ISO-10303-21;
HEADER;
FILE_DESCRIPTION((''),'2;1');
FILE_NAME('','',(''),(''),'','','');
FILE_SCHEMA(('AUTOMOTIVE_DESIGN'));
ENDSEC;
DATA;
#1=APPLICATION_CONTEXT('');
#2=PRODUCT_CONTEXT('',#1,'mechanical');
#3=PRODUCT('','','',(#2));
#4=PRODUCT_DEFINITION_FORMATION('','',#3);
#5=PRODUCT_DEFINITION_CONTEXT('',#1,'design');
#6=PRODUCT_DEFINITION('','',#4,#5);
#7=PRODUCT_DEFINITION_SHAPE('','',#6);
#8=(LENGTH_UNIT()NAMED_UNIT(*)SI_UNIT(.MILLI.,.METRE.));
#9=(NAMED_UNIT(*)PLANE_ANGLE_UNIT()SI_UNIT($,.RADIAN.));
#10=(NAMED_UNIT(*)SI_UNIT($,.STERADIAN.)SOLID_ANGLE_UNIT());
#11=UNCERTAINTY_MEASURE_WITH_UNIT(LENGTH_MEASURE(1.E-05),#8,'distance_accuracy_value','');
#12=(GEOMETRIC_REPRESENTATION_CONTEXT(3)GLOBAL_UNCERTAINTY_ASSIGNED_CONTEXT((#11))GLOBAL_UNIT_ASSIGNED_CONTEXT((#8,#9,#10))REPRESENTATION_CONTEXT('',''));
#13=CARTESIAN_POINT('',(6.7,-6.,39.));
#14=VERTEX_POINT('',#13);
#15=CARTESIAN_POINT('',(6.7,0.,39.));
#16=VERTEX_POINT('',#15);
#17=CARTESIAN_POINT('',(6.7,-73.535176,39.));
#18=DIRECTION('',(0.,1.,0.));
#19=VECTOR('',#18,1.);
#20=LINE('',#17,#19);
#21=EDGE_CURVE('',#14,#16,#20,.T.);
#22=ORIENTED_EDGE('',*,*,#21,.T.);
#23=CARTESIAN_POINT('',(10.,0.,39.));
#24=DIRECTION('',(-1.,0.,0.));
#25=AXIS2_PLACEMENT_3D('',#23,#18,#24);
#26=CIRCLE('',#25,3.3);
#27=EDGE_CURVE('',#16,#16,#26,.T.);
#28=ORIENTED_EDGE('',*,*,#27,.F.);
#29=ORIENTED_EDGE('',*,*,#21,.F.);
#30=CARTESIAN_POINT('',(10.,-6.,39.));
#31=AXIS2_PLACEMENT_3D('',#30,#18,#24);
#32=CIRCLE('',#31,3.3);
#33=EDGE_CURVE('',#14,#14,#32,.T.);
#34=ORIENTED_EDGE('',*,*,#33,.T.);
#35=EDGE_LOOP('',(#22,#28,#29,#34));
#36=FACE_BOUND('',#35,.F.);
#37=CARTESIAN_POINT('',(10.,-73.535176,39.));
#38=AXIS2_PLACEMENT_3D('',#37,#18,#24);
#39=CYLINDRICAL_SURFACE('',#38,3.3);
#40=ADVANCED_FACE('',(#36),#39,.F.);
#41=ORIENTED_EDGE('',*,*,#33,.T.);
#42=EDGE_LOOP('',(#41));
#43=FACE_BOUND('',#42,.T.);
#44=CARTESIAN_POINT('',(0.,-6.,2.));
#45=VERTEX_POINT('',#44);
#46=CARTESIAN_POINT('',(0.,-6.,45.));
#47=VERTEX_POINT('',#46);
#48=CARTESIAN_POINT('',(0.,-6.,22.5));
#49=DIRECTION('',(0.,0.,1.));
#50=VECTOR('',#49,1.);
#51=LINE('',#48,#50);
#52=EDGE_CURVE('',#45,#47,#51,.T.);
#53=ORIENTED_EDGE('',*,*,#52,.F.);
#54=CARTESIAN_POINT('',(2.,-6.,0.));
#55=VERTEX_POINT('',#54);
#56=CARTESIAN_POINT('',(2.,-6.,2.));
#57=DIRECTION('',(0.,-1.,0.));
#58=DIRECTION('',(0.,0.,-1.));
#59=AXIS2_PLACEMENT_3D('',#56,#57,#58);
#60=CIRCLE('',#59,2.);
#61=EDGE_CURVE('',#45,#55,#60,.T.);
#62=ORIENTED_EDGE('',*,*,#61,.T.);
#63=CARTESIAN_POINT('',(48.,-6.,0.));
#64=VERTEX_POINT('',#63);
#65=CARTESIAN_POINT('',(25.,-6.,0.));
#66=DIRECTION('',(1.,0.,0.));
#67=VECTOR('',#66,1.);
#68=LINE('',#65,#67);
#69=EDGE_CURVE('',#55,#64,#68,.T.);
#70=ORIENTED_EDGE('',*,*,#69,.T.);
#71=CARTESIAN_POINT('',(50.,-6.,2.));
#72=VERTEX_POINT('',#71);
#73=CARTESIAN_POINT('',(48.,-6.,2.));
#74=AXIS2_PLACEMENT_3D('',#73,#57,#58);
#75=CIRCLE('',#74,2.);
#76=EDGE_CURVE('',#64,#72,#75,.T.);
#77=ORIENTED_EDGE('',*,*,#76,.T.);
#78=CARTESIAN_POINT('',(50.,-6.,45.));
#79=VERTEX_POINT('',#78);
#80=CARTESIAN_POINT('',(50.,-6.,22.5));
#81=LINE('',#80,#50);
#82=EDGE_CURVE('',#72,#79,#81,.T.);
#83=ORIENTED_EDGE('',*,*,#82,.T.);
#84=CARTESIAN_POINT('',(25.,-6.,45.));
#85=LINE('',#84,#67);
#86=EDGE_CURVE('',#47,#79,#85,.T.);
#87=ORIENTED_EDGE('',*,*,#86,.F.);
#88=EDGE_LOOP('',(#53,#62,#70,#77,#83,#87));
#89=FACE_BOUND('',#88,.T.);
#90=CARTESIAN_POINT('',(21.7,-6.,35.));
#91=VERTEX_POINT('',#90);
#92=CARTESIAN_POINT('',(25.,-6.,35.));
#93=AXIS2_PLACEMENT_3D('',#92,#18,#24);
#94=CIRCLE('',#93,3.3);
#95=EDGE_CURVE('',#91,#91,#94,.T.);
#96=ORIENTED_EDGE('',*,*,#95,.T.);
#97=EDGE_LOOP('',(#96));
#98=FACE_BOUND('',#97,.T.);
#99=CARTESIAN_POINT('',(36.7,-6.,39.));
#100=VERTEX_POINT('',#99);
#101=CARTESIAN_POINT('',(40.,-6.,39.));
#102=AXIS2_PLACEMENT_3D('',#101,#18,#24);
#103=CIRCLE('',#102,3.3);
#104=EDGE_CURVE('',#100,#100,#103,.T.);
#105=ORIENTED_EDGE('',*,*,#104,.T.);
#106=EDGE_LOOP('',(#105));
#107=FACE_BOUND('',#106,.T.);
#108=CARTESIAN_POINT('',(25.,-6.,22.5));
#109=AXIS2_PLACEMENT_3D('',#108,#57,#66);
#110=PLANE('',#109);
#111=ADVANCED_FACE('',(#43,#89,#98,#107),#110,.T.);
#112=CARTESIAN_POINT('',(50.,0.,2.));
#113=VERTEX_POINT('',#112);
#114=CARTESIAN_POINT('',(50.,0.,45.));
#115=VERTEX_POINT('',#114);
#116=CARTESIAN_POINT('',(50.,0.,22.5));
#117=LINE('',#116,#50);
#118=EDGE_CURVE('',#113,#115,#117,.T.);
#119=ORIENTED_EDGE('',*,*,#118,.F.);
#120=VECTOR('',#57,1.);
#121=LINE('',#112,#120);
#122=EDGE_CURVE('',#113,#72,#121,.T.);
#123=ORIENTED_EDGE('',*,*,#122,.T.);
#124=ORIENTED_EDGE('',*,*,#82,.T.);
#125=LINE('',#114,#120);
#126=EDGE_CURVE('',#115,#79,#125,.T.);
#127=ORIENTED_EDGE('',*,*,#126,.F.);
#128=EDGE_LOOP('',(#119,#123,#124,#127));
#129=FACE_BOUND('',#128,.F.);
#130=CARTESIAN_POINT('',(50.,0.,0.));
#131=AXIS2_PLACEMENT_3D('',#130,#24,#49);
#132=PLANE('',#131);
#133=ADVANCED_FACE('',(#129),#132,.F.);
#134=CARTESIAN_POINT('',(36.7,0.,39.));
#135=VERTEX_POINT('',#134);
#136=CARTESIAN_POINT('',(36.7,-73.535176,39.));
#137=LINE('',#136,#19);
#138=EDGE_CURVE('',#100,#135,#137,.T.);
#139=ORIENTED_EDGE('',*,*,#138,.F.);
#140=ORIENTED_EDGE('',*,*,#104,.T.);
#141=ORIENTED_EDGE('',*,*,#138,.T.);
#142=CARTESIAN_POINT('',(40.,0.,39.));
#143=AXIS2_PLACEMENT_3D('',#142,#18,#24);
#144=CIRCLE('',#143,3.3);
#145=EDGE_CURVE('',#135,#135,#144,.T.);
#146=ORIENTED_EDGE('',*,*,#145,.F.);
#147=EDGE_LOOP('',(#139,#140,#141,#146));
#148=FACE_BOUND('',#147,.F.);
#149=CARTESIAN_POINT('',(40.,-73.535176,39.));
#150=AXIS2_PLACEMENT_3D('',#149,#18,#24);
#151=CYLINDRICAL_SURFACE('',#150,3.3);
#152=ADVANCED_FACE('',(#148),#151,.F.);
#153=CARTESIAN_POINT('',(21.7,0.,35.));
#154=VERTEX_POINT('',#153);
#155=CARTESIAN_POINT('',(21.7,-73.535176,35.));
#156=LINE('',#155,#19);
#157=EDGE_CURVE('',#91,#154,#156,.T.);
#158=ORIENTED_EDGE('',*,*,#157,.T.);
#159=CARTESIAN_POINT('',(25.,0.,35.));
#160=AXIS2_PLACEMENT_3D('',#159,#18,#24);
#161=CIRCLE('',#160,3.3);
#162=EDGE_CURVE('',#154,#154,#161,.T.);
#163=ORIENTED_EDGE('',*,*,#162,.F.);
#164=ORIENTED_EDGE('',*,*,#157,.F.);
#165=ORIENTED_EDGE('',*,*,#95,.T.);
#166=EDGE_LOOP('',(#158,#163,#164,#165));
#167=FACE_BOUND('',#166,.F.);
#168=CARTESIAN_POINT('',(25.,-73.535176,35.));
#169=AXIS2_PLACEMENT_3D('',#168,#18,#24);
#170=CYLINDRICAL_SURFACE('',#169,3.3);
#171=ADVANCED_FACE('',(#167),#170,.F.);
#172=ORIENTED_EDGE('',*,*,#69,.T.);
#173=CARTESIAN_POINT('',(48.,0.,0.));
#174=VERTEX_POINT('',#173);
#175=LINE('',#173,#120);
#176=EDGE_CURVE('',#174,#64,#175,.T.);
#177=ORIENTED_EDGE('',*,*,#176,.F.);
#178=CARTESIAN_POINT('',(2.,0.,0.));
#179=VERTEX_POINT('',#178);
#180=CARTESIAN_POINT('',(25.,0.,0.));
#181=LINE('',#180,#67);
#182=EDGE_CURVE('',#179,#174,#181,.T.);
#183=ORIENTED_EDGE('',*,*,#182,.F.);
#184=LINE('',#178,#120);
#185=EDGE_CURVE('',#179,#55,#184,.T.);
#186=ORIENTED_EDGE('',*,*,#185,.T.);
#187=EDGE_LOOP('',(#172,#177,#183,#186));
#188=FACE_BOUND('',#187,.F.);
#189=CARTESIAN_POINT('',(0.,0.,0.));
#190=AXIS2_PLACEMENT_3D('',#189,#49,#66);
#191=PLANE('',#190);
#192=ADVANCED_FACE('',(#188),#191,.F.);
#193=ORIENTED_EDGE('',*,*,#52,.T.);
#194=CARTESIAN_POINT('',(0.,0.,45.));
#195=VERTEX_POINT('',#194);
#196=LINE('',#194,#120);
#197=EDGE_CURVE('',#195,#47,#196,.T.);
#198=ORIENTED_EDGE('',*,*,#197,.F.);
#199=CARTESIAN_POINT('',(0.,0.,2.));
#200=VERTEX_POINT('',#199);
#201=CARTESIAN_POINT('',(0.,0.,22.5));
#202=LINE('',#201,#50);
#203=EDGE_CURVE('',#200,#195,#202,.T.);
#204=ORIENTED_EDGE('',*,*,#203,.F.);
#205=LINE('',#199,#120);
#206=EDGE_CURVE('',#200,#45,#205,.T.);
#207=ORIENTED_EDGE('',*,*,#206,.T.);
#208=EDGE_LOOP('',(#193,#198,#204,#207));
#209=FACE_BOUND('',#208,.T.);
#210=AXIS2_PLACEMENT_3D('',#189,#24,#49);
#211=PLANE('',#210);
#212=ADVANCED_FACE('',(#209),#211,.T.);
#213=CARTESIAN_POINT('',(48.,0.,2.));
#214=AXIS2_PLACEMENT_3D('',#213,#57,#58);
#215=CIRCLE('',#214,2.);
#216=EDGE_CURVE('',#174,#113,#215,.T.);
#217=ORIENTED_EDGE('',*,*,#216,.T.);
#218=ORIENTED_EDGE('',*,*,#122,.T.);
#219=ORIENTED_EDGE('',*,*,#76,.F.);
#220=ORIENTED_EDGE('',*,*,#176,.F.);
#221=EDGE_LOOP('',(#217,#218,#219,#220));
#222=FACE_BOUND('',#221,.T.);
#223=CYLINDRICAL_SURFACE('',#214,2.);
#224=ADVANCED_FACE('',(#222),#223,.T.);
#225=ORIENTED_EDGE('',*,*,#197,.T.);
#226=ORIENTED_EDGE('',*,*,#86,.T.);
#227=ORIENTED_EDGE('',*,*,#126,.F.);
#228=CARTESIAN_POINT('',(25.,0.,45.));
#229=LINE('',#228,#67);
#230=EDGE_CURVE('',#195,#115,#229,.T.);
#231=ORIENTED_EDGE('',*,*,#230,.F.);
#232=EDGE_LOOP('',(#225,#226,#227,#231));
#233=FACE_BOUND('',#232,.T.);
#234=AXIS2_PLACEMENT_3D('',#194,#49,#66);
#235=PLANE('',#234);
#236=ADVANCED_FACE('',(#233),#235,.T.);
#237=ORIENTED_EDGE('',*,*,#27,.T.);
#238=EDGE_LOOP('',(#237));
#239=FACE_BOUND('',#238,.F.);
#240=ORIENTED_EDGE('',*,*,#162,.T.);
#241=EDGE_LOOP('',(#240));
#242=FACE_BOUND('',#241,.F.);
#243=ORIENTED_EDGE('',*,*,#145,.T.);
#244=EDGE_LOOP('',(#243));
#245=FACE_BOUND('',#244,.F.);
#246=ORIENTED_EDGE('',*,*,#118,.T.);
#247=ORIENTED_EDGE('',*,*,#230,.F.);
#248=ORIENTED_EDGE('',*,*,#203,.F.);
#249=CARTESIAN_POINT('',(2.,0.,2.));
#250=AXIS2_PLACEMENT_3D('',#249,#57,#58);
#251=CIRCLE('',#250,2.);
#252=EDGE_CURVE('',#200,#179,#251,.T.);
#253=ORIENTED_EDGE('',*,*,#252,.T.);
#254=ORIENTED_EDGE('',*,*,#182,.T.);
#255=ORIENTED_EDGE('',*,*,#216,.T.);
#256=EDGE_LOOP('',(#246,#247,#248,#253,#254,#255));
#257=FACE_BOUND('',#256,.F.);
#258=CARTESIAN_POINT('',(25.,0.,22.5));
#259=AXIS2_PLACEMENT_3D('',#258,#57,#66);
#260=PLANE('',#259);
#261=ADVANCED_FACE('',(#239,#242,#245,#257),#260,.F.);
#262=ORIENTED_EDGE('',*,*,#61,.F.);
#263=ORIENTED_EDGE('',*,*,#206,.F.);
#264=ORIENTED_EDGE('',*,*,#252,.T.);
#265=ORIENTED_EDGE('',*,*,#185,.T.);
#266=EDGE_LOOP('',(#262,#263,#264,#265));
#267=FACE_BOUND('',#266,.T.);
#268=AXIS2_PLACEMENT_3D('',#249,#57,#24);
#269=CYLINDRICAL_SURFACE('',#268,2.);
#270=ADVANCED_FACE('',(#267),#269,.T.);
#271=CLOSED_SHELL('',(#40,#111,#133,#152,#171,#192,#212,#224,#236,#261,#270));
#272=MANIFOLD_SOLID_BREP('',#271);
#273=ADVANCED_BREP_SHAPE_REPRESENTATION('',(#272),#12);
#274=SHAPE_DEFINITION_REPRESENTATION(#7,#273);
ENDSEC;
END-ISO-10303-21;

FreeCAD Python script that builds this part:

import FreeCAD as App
import Part
import Sketcher
from FreeCAD import Vector
Q = App.Units.Quantity


def edges_at(feature, points):
    """Names of the edges that pass closest to the given points."""
    edges = feature.Shape.Edges
    near = lambda p: min(range(len(edges)), key=lambda i: edges[i].distToShape(Part.Vertex(*p))[0])
    return sorted({f"Edge{near(p) + 1}" for p in points})


def add_polygon(sketch, points):
    """Adds a closed chain of lines whose ends are joined by coincident constraints."""
    first, n = sketch.GeometryCount, len(points)
    for a, b in zip(points, points[1:] + points[:1]):
        sketch.addGeometry(Part.LineSegment(App.Vector(*a, 0), App.Vector(*b, 0)), False)
    for i in range(n):
        sketch.addConstraint(Sketcher.Constraint("Coincident", first + i, 2, first + (i + 1) % n, 1))

doc = App.newDocument("Part")
body = doc.addObject("PartDesign::Body", "Body")

sketch1 = body.newObject("Sketcher::SketchObject", "Sketch")
sketch1.AttachmentSupport = (doc.getObject("XZ_Plane"), [""])
sketch1.MapMode = "FlatFace"
add_polygon(sketch1, [(0, 45), (0, 0), (50, 0), (50, 45)])
sketch1.addConstraint(Sketcher.Constraint("Vertical", 0))
sketch1.addConstraint(Sketcher.Constraint("Horizontal", 1))
sketch1.addConstraint(Sketcher.Constraint("Vertical", 2))
sketch1.addConstraint(Sketcher.Constraint("Horizontal", 3))
sketch1.addConstraint(Sketcher.Constraint("Coincident", 0, 2, -1, 1))
sketch1.addConstraint(Sketcher.Constraint("DistanceX", 1, 1, 1, 2, Q("50 mm")))
sketch1.addConstraint(Sketcher.Constraint("DistanceY", 0, 2, 0, 1, Q("45 mm")))
pad1 = body.newObject("PartDesign::Pad", "Pad")
pad1.Profile = sketch1
pad1.Length = 6

sketch2 = body.newObject("Sketcher::SketchObject", "Sketch001")
sketch2.AttachmentSupport = (doc.getObject("XZ_Plane"), [""])
sketch2.MapMode = "FlatFace"
sketch2.AttachmentOffset = App.Placement(Vector(0, 0, 6), App.Rotation())
sketch2.addGeometry(Part.Circle(Vector(10, 39, 0), Vector(0, 0, 1), 3.3), False)
sketch2.addGeometry(Part.Circle(Vector(25, 35, 0), Vector(0, 0, 1), 3.3), False)
sketch2.addGeometry(Part.Circle(Vector(40, 39, 0), Vector(0, 0, 1), 3.3), False)
sketch2.addConstraint(Sketcher.Constraint("Equal", 0, 1))
sketch2.addConstraint(Sketcher.Constraint("Equal", 1, 2))
sketch2.addConstraint(Sketcher.Constraint("Horizontal", 0, 3, 2, 3))
sketch2.addConstraint(Sketcher.Constraint("Diameter", 0, Q("6.6 mm")))
sketch2.addConstraint(Sketcher.Constraint("DistanceX", -1, 1, 0, 3, Q("10 mm")))
sketch2.addConstraint(Sketcher.Constraint("DistanceY", -1, 1, 0, 3, Q("39 mm")))
sketch2.addConstraint(Sketcher.Constraint("DistanceX", -1, 1, 1, 3, Q("25 mm")))
sketch2.addConstraint(Sketcher.Constraint("DistanceY", -1, 1, 1, 3, Q("35 mm")))
sketch2.addConstraint(Sketcher.Constraint("DistanceX", -1, 1, 2, 3, Q("40 mm")))
doc.recompute()
hole = body.newObject("PartDesign::Hole", "Hole")
hole.Profile = sketch2
hole.ThreadType = "None"
hole.Diameter = 6.6
hole.DepthType = "ThroughAll"
doc.recompute()

fillet = body.newObject("PartDesign::Fillet", "Fillet")
fillet.Base = (hole, edges_at(hole, [(50, -3, 0), (0, -3, 0)]))
fillet.Radius = 2

doc.recompute()
